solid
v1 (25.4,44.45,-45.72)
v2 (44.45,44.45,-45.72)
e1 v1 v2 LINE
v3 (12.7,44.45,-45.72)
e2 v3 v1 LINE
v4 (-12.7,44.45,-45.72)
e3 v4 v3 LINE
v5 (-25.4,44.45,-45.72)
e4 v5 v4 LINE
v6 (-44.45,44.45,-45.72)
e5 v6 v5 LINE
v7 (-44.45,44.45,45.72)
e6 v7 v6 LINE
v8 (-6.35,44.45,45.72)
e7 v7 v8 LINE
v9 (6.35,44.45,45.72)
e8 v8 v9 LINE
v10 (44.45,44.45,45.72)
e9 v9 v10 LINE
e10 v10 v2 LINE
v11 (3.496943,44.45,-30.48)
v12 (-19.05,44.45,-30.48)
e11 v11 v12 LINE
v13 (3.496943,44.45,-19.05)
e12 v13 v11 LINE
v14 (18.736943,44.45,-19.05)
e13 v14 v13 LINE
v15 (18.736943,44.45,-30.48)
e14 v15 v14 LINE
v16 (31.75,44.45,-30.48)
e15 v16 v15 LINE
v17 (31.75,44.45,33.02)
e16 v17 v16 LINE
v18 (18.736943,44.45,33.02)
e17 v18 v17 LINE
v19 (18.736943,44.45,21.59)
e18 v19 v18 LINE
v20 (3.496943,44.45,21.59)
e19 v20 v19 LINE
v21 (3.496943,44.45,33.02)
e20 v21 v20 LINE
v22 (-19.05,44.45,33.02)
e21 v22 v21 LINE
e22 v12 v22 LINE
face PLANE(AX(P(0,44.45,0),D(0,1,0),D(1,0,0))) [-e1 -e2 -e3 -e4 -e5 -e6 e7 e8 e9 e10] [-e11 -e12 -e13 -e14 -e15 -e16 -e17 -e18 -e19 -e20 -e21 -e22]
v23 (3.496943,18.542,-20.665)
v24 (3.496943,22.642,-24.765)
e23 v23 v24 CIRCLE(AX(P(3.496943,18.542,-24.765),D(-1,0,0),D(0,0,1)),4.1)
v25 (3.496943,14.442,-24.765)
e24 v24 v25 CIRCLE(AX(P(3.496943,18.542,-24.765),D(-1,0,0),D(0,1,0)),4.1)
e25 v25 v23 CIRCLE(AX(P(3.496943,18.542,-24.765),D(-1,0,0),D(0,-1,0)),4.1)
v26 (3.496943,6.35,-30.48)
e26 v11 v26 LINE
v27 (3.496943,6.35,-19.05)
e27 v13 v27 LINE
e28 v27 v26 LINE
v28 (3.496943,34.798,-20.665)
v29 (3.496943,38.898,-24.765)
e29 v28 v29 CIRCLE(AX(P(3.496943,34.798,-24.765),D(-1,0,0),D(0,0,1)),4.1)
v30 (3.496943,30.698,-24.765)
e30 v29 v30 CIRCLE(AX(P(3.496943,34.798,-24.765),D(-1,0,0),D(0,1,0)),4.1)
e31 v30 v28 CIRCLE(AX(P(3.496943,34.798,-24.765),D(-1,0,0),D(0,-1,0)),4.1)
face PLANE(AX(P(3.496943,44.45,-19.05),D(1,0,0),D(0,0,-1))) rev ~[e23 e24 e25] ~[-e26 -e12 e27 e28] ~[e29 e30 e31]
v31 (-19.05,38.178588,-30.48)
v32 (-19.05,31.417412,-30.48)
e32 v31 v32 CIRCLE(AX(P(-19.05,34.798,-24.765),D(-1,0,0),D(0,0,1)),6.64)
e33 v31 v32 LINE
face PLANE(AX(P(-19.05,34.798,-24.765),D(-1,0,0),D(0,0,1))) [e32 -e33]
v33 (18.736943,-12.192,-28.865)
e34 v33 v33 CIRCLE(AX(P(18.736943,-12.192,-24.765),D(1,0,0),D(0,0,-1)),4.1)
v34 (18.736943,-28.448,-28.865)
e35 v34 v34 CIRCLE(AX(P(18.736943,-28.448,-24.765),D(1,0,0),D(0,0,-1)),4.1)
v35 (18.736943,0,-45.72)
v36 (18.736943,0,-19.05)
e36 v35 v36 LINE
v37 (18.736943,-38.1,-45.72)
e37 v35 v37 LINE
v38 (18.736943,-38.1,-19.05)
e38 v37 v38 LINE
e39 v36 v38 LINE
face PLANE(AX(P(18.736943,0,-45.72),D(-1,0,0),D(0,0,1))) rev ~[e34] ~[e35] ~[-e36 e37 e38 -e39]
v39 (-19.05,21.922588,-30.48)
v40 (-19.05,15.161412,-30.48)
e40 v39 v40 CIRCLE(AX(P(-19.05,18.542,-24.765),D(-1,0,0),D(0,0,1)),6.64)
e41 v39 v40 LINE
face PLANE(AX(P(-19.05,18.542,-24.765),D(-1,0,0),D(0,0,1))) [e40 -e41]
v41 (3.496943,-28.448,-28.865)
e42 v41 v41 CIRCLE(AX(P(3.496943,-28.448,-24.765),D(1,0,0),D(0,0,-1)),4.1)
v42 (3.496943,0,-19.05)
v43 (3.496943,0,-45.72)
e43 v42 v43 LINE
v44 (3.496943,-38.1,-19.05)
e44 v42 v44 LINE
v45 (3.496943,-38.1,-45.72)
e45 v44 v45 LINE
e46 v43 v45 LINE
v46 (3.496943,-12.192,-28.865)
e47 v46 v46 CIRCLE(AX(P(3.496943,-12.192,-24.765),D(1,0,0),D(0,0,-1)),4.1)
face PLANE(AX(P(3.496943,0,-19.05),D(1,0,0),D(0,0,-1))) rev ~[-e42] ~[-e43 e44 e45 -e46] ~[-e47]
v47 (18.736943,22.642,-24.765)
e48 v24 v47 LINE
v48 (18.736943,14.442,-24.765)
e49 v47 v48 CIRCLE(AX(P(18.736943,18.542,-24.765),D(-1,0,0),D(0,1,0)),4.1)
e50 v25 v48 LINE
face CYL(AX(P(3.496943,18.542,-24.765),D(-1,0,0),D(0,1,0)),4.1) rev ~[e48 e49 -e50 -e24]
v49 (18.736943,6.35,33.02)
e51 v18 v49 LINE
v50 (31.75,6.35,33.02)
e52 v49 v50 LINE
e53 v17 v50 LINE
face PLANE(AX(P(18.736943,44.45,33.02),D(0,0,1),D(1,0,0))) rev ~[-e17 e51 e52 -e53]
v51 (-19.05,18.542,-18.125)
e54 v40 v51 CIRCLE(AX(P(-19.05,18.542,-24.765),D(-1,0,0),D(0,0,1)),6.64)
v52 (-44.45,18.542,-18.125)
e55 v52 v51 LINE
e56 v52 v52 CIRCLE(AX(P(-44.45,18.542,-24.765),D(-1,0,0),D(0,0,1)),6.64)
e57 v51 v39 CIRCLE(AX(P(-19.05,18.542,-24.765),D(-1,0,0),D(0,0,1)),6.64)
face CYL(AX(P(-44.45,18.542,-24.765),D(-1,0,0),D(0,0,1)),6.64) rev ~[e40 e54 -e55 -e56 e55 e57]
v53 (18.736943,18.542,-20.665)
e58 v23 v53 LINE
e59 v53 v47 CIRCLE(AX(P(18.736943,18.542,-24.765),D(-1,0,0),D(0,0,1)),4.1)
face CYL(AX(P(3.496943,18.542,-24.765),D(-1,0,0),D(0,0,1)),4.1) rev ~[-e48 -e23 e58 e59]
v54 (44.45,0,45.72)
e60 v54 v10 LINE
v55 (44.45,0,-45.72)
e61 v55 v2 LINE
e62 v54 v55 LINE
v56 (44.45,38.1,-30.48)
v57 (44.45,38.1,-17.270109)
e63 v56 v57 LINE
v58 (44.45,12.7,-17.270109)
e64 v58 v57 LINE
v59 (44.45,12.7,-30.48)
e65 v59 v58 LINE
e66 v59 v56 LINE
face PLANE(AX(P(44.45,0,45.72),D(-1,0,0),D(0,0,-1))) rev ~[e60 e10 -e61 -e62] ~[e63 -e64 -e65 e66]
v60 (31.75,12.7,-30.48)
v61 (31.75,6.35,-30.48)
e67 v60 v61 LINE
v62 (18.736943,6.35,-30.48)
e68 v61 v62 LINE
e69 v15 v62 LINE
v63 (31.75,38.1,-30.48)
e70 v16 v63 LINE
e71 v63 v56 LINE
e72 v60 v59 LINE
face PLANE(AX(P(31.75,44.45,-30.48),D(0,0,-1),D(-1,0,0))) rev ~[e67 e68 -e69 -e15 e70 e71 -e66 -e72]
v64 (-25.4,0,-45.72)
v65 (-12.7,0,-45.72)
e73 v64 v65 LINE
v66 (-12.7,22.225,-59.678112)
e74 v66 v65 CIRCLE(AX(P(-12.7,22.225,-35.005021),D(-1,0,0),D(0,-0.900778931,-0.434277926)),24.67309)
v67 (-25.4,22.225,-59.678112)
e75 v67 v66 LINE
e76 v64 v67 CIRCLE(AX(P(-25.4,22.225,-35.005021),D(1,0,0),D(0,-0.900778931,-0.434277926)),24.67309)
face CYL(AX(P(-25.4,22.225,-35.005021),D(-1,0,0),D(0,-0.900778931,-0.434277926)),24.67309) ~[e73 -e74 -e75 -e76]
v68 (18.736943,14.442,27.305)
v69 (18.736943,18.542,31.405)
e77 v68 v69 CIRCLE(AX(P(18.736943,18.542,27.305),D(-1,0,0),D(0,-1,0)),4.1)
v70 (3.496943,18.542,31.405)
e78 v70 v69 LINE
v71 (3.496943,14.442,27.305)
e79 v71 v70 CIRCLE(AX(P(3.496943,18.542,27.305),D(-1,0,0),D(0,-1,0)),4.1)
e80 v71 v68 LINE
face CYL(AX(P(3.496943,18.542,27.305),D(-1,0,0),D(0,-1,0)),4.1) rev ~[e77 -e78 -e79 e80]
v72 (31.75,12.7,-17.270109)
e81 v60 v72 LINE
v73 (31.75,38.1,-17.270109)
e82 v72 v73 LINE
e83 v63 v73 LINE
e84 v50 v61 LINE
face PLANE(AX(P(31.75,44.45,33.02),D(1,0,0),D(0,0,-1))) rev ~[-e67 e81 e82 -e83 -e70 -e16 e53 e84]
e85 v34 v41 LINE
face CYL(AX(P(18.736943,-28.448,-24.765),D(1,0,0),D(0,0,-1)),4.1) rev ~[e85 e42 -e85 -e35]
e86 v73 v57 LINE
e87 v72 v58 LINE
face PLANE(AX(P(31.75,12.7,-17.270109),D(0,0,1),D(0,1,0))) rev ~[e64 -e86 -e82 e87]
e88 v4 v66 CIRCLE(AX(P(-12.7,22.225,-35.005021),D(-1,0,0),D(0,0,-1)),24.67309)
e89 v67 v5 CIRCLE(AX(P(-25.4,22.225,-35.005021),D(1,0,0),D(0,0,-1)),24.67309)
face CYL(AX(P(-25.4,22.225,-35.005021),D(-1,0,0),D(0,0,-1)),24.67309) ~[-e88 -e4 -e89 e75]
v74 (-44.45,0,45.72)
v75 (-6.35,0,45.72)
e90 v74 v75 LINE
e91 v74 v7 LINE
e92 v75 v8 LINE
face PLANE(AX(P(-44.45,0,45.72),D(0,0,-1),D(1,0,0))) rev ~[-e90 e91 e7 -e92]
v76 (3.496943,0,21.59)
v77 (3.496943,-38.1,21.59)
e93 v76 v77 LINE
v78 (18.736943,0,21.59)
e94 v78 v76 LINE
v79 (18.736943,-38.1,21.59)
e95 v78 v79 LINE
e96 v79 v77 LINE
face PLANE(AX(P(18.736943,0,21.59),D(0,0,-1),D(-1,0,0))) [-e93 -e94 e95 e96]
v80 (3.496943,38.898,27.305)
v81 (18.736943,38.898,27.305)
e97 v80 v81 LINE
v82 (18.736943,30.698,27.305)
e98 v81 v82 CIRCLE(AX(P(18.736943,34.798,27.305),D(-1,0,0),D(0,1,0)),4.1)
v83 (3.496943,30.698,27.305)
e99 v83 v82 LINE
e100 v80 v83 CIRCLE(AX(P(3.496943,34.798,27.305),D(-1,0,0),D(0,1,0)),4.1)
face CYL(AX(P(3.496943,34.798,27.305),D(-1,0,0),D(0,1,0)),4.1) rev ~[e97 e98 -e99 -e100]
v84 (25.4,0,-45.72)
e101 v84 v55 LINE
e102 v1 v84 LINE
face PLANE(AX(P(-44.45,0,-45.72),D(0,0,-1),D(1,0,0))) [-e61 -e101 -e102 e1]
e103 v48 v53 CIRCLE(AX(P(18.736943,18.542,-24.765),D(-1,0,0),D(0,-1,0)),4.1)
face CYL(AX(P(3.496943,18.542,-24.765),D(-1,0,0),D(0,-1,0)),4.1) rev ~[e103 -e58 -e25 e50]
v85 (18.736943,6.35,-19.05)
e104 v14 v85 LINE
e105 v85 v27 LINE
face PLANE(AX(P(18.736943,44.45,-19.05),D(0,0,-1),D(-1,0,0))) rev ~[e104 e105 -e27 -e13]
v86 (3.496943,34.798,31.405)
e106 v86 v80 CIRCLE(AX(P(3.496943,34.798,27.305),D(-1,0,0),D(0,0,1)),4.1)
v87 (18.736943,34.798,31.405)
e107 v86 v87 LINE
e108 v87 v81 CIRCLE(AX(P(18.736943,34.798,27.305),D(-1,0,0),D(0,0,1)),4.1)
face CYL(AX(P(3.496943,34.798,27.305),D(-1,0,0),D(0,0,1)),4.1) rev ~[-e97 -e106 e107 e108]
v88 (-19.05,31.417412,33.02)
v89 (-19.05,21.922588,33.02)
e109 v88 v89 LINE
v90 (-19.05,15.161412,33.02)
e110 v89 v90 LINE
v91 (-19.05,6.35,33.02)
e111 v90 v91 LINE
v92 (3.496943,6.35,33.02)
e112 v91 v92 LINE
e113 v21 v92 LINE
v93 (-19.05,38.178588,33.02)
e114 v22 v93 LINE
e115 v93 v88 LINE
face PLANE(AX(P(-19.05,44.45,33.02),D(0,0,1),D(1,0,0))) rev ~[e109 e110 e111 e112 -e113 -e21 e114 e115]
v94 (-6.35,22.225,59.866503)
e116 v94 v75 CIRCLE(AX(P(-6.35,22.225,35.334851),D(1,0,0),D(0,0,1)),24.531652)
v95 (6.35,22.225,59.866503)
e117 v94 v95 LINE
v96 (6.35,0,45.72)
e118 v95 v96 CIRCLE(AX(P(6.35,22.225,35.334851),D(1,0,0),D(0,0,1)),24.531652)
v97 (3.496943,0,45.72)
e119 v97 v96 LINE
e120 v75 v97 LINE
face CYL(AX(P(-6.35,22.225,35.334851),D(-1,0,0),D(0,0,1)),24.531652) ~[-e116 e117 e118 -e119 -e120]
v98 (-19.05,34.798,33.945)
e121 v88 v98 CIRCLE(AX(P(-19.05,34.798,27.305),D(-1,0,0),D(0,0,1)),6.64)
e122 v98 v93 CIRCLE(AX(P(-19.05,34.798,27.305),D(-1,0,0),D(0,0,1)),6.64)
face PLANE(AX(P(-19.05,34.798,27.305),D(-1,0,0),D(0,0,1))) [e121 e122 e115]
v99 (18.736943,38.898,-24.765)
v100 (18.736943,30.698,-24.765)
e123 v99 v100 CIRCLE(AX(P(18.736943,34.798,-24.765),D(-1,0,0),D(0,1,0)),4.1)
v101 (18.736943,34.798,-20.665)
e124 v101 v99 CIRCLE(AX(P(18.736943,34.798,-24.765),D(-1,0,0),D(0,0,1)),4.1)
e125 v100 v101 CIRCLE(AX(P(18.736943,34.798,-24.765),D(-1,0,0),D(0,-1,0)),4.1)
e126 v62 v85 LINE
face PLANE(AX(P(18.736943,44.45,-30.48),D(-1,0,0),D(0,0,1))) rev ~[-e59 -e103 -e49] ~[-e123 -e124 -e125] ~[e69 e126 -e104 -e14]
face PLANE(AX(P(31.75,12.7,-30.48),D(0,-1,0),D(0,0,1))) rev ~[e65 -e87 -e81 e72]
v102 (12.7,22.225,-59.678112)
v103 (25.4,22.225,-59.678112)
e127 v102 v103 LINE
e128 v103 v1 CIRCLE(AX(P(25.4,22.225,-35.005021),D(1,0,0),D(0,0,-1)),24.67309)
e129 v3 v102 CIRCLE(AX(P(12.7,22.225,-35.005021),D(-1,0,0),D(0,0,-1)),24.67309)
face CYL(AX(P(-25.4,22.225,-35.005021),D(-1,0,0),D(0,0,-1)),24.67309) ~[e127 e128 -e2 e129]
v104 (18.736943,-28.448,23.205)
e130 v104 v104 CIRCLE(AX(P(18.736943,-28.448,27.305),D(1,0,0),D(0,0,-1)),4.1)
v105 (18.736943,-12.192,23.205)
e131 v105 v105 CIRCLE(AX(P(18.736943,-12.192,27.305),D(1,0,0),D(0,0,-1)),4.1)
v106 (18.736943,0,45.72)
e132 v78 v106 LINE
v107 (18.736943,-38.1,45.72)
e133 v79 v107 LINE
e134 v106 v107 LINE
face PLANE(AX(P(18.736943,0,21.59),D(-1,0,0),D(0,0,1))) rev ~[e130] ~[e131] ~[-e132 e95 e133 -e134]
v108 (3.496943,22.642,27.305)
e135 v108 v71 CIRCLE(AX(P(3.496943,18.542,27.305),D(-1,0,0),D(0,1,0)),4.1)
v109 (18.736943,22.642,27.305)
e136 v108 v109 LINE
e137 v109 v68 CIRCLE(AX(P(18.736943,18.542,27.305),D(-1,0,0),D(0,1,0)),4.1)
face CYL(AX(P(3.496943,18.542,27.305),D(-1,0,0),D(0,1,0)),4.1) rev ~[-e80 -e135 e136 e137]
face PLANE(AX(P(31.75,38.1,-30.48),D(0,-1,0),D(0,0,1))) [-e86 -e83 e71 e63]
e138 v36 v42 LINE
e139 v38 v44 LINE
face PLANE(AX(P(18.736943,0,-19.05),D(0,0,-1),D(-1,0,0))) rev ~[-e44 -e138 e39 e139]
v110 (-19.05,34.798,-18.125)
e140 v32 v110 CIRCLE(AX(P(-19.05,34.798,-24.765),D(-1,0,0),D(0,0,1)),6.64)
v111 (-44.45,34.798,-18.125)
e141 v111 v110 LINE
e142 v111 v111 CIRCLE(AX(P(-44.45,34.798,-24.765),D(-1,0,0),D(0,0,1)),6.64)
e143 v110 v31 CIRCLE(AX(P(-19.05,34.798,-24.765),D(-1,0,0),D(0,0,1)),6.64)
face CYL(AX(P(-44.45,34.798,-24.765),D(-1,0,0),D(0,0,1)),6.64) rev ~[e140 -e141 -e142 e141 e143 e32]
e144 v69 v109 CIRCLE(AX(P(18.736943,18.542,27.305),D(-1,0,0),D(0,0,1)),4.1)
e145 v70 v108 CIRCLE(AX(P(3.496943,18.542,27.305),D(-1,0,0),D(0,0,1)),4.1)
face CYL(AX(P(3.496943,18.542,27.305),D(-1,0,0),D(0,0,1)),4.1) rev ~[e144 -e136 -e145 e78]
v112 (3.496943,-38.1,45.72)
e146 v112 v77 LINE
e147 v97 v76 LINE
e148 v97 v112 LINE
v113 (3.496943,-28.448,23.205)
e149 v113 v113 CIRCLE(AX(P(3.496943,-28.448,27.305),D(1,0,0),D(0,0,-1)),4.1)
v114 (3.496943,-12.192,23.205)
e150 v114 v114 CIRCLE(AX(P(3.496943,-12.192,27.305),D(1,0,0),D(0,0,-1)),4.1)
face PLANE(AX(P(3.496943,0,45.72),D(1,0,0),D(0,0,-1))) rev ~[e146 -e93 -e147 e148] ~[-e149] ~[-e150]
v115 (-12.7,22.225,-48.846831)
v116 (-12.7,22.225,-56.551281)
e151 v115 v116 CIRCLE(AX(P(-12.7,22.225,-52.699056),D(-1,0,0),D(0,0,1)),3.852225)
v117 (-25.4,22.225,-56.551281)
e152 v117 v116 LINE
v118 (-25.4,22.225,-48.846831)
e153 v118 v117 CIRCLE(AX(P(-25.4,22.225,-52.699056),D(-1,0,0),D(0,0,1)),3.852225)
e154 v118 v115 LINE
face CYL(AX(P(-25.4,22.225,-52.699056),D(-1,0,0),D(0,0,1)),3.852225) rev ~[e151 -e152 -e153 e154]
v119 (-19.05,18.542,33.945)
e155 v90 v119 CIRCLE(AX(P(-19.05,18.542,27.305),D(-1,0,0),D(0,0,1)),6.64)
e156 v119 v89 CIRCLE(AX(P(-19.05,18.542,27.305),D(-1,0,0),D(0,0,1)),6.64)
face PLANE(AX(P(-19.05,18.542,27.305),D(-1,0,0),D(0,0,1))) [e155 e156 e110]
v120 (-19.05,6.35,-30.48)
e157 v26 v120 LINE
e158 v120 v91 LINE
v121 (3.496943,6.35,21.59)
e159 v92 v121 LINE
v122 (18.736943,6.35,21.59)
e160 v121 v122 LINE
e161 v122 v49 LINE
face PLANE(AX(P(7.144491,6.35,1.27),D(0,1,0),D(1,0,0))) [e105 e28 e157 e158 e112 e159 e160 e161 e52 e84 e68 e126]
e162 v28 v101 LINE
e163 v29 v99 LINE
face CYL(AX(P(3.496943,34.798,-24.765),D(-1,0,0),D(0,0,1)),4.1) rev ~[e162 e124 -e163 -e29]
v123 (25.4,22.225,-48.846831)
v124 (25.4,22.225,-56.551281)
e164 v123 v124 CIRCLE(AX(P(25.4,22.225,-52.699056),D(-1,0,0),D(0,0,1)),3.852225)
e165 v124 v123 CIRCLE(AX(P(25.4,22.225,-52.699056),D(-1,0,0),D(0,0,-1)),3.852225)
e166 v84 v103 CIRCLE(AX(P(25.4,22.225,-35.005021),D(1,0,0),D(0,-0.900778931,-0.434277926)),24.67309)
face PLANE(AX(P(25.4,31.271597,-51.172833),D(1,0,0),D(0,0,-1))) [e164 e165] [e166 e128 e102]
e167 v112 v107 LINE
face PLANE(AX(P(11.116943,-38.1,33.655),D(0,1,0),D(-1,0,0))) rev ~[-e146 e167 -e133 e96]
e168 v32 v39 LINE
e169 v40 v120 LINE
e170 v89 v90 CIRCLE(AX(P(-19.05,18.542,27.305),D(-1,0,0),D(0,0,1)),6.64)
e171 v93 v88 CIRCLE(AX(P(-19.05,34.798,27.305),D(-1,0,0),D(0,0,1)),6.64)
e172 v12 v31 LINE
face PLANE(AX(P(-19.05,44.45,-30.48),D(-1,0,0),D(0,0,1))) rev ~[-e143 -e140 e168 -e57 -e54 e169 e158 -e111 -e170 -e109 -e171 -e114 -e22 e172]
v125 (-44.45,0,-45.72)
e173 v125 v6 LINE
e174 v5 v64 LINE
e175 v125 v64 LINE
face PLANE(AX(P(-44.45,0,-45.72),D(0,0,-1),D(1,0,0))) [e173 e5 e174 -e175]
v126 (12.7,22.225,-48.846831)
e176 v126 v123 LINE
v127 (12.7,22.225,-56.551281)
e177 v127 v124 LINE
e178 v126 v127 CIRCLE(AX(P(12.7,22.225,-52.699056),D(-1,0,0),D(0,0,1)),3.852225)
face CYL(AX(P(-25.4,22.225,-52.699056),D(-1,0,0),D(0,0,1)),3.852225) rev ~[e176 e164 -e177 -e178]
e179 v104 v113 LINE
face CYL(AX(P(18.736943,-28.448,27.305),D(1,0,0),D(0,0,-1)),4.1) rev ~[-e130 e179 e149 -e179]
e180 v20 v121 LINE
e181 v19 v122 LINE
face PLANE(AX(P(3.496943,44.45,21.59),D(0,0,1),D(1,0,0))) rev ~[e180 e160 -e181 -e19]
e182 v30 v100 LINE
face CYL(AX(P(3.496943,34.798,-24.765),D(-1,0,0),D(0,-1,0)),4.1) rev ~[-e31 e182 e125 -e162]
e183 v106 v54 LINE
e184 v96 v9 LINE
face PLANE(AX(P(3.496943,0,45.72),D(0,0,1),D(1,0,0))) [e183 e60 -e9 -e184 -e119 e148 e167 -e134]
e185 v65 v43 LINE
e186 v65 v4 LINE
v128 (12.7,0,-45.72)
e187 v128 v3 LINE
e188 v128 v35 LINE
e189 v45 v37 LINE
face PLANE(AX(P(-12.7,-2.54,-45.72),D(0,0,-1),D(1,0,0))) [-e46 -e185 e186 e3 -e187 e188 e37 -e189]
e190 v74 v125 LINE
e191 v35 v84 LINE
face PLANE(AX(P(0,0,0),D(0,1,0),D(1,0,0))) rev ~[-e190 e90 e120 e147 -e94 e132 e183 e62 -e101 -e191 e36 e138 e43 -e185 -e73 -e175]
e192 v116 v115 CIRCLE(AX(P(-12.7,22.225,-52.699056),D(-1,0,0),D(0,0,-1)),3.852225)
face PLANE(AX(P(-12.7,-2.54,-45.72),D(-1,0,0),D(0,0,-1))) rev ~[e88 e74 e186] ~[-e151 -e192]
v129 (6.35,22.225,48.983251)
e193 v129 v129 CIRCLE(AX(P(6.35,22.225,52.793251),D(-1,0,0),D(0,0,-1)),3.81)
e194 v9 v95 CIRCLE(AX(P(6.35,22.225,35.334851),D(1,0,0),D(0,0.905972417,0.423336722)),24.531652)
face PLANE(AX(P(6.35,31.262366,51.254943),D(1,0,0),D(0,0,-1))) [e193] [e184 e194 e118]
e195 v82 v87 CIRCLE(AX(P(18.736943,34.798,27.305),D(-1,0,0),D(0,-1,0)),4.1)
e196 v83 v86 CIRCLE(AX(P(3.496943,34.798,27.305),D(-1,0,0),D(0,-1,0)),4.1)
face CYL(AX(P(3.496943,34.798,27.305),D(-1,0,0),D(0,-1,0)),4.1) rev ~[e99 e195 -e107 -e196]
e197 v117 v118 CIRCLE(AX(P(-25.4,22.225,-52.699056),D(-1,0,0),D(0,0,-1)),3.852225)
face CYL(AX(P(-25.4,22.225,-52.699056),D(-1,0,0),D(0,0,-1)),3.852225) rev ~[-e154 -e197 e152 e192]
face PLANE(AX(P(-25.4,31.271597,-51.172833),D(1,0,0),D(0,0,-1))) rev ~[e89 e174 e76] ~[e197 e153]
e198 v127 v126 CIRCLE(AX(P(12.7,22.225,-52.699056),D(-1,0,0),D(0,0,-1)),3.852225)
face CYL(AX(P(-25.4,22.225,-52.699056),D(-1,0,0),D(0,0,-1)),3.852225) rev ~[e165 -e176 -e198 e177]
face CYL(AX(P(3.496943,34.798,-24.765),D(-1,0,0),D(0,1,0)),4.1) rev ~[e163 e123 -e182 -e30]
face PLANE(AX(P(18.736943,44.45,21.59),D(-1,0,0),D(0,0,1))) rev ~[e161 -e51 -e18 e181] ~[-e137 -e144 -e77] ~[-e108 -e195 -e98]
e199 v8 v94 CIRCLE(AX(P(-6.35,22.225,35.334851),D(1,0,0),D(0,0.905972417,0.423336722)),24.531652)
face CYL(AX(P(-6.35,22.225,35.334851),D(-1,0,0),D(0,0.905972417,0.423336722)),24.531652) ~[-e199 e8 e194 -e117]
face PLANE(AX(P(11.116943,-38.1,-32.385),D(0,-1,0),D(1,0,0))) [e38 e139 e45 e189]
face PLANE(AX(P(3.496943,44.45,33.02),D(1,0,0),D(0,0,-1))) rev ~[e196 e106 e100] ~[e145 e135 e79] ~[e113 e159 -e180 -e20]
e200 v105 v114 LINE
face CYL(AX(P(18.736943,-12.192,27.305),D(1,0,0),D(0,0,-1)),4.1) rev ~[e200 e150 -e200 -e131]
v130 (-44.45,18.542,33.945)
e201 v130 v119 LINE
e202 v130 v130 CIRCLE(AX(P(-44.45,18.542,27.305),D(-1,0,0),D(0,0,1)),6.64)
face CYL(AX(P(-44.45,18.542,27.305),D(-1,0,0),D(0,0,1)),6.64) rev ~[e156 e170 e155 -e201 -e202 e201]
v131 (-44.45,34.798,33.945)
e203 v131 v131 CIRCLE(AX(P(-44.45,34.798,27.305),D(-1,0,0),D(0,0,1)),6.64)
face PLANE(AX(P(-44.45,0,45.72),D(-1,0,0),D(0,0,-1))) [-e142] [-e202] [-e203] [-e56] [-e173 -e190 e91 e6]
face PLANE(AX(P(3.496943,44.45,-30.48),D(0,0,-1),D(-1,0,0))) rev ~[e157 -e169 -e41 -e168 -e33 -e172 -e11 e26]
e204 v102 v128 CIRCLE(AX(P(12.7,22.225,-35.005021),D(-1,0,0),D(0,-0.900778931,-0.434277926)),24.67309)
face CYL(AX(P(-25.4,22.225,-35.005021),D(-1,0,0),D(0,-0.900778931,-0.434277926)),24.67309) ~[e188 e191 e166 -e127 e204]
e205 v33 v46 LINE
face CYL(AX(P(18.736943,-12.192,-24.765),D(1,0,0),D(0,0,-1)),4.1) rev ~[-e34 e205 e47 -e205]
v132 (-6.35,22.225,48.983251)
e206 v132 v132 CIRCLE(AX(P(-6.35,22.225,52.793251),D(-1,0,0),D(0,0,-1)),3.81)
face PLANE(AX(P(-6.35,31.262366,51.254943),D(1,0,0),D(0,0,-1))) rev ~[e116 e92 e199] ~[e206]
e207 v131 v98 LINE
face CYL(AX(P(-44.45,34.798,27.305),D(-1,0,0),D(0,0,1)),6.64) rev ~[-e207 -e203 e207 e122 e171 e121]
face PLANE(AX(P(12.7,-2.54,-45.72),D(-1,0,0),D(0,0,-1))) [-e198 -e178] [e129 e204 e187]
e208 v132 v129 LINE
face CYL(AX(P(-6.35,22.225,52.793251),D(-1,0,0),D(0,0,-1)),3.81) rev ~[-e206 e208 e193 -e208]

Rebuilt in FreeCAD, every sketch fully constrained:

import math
import FreeCAD as App
import Part
import Sketcher

V = App.Vector
Q = App.Units.Quantity


def add_polygon(sketch, points):
    """Adds a closed chain of lines whose ends are joined by coincident constraints."""
    first, n = sketch.GeometryCount, len(points)
    for a, b in zip(points, points[1:] + points[:1]):
        sketch.addGeometry(Part.LineSegment(App.Vector(*a, 0), App.Vector(*b, 0)), False)
    for i in range(n):
        sketch.addConstraint(Sketcher.Constraint("Coincident", first + i, 2, first + (i + 1) % n, 1))

doc = App.newDocument("Part")
body = doc.addObject("PartDesign::Body", "Body")

# Sketch on XZ plane
sketch1 = body.newObject("Sketcher::SketchObject", "Sketch")
sketch1.AttachmentSupport = (doc.getObject("XZ_Plane"), [""])
sketch1.MapMode = "FlatFace"
add_polygon(sketch1, [(-44, -46), (-44, 46), (44, 46), (44, -46)])  # lines 0-3
sketch1.addConstraint(Sketcher.Constraint("Vertical", 0))
sketch1.addConstraint(Sketcher.Constraint("Horizontal", 1))
sketch1.addConstraint(Sketcher.Constraint("Vertical", 2))
sketch1.addConstraint(Sketcher.Constraint("Horizontal", 3))
sketch1.addConstraint(Sketcher.Constraint("Symmetric", 0, 2, 2, 2, -1, 1))
sketch1.addConstraint(Sketcher.Constraint("DistanceX", 1, 1, 1, 2, Q("3.5 in")))
sketch1.addConstraint(Sketcher.Constraint("DistanceY", 0, 1, 0, 2, Q("3.6 in")))
pad1 = body.newObject("PartDesign::Pad", "Pad")
pad1.Profile = sketch1
pad1.Length = Q("1.75 in")
pad1.Reversed = True

# Sketch on XZ plane
sketch2 = body.newObject("Sketcher::SketchObject", "Sketch001")
sketch2.AttachmentSupport = (doc.getObject("XZ_Plane"), [""])
sketch2.MapMode = "FlatFace"
sketch2.AttachmentOffset = App.Placement(V(0, 0, -1.75 * 25.4), App.Rotation())
add_polygon(sketch2, [(-19, -30), (-19, 33), (3, 33), (3, 22), (19, 22), (19, 33), (32, 33), (32, -30), (19, -30), (19, -19), (3, -19), (3, -30)])  # lines 0-11
sketch2.addConstraint(Sketcher.Constraint("Vertical", 0))
sketch2.addConstraint(Sketcher.Constraint("Horizontal", 1))
sketch2.addConstraint(Sketcher.Constraint("Vertical", 2))
sketch2.addConstraint(Sketcher.Constraint("Horizontal", 3))
sketch2.addConstraint(Sketcher.Constraint("Vertical", 4))
sketch2.addConstraint(Sketcher.Constraint("Horizontal", 5))
sketch2.addConstraint(Sketcher.Constraint("Vertical", 6))
sketch2.addConstraint(Sketcher.Constraint("Horizontal", 7))
sketch2.addConstraint(Sketcher.Constraint("Vertical", 8))
sketch2.addConstraint(Sketcher.Constraint("Horizontal", 9))
sketch2.addConstraint(Sketcher.Constraint("Vertical", 10))
sketch2.addConstraint(Sketcher.Constraint("Horizontal", 11))
sketch2.addConstraint(Sketcher.Constraint("Horizontal", 1, 2, 4, 2))
sketch2.addConstraint(Sketcher.Constraint("Horizontal", 7, 2, 10, 2))
sketch2.addConstraint(Sketcher.Constraint("Vertical", 4, 2, 7, 2))
sketch2.addConstraint(Sketcher.Constraint("Vertical", 2, 2, 9, 2))
sketch2.addConstraint(Sketcher.Constraint("Equal", 4, 8))
sketch2.addConstraint(Sketcher.Constraint("DistanceX", 3, 1, 3, 2, Q("0.6 in")))
sketch2.addConstraint(Sketcher.Constraint("DistanceY", 0, 1, 0, 2, Q("2.5 in")))
sketch2.addConstraint(Sketcher.Constraint("DistanceX", 0, 2, 5, 2, Q("2 in")))
sketch2.addConstraint(Sketcher.Constraint("DistanceY", 2, 2, 2, 1, Q("0.45 in")))
sketch2.addConstraint(Sketcher.Constraint("DistanceY", -1, 1, 0, 2, Q("1.3 in")))
sketch2.addConstraint(Sketcher.Constraint("DistanceX", 0, 2, -1, 1, Q("0.75 in")))
sketch2.addConstraint(Sketcher.Constraint("DistanceX", 1, 1, 1, 2, 22.546943))
pocket1 = body.newObject("PartDesign::Pocket", "Pocket")
pocket1.Profile = sketch2
pocket1.Length = Q("1.5 in")
pocket1.Reversed = True

# Sketch on YZ plane
sketch3 = body.newObject("Sketcher::SketchObject", "Sketch002")
sketch3.AttachmentSupport = (doc.getObject("YZ_Plane"), [""])
sketch3.MapMode = "FlatFace"
sketch3.AttachmentOffset = App.Placement(V(0, 0, 3.496943), App.Rotation())
sketch3.addGeometry(Part.ArcOfCircle(Part.Circle(V(18.5, -24.8, 0), V(0, 0, 1), 4.1), math.radians(180), math.radians(360)), False)
sketch3.addGeometry(Part.ArcOfCircle(Part.Circle(V(18.5, -24.8, 0), V(0, 0, 1), 4.1), math.radians(90), math.radians(180)), False)
sketch3.addGeometry(Part.ArcOfCircle(Part.Circle(V(18.5, -24.8, 0), V(0, 0, 1), 4.1), math.radians(0), math.radians(90)), False)
sketch3.addGeometry(Part.ArcOfCircle(Part.Circle(V(34.8, -24.8, 0), V(0, 0, 1), 4.1), math.radians(180), math.radians(360)), False)
sketch3.addGeometry(Part.ArcOfCircle(Part.Circle(V(34.8, -24.8, 0), V(0, 0, 1), 4.1), math.radians(90), math.radians(180)), False)
sketch3.addGeometry(Part.ArcOfCircle(Part.Circle(V(34.8, -24.8, 0), V(0, 0, 1), 4.1), math.radians(0), math.radians(90)), False)
sketch3.addGeometry(Part.ArcOfCircle(Part.Circle(V(18.5, 27.3, 0), V(0, 0, 1), 4.1), math.radians(180), math.radians(360)), False)
sketch3.addGeometry(Part.ArcOfCircle(Part.Circle(V(18.5, 27.3, 0), V(0, 0, 1), 4.1), math.radians(90), math.radians(180)), False)
sketch3.addGeometry(Part.ArcOfCircle(Part.Circle(V(18.5, 27.3, 0), V(0, 0, 1), 4.1), math.radians(0), math.radians(90)), False)
sketch3.addGeometry(Part.ArcOfCircle(Part.Circle(V(34.8, 27.3, 0), V(0, 0, 1), 4.1), math.radians(180), math.radians(360)), False)
sketch3.addGeometry(Part.ArcOfCircle(Part.Circle(V(34.8, 27.3, 0), V(0, 0, 1), 4.1), math.radians(90), math.radians(180)), False)
sketch3.addGeometry(Part.ArcOfCircle(Part.Circle(V(34.8, 27.3, 0), V(0, 0, 1), 4.1), math.radians(0), math.radians(90)), False)
sketch3.addConstraint(Sketcher.Constraint("Tangent", 0, 1, 1, 2))
sketch3.addConstraint(Sketcher.Constraint("Tangent", 1, 1, 2, 2))
sketch3.addConstraint(Sketcher.Constraint("Tangent", 2, 1, 0, 2))
sketch3.addConstraint(Sketcher.Constraint("Tangent", 3, 1, 4, 2))
sketch3.addConstraint(Sketcher.Constraint("Tangent", 4, 1, 5, 2))
sketch3.addConstraint(Sketcher.Constraint("Tangent", 5, 1, 3, 2))
sketch3.addConstraint(Sketcher.Constraint("Tangent", 6, 1, 7, 2))
sketch3.addConstraint(Sketcher.Constraint("Tangent", 7, 1, 8, 2))
sketch3.addConstraint(Sketcher.Constraint("Tangent", 8, 1, 6, 2))
sketch3.addConstraint(Sketcher.Constraint("Tangent", 9, 1, 10, 2))
sketch3.addConstraint(Sketcher.Constraint("Tangent", 10, 1, 11, 2))
sketch3.addConstraint(Sketcher.Constraint("Tangent", 11, 1, 9, 2))
sketch3.addConstraint(Sketcher.Constraint("Equal", 2, 3))
sketch3.addConstraint(Sketcher.Constraint("Equal", 5, 6))
sketch3.addConstraint(Sketcher.Constraint("Equal", 8, 9))
sketch3.addConstraint(Sketcher.Constraint("Horizontal", 2, 3, 3, 3))
sketch3.addConstraint(Sketcher.Constraint("Horizontal", 8, 3, 9, 3))
sketch3.addConstraint(Sketcher.Constraint("Horizontal", 5, 3, 0, 1))
sketch3.addConstraint(Sketcher.Constraint("Horizontal", 0, 1, 2, 1))
sketch3.addConstraint(Sketcher.Constraint("Horizontal", 2, 1, 3, 1))
sketch3.addConstraint(Sketcher.Constraint("Horizontal", 3, 1, 5, 1))
sketch3.addConstraint(Sketcher.Constraint("Horizontal", 11, 3, 6, 1))
sketch3.addConstraint(Sketcher.Constraint("Horizontal", 6, 1, 8, 1))
sketch3.addConstraint(Sketcher.Constraint("Horizontal", 8, 1, 9, 1))
sketch3.addConstraint(Sketcher.Constraint("Horizontal", 9, 1, 11, 1))
sketch3.addConstraint(Sketcher.Constraint("Vertical", 2, 3, 6, 3))
sketch3.addConstraint(Sketcher.Constraint("Vertical", 5, 3, 9, 3))
sketch3.addConstraint(Sketcher.Constraint("Vertical", 8, 3, 1, 1))
sketch3.addConstraint(Sketcher.Constraint("Vertical", 11, 3, 4, 1))
sketch3.addConstraint(Sketcher.Constraint("Vertical", 1, 1, 7, 1))
sketch3.addConstraint(Sketcher.Constraint("Vertical", 4, 1, 10, 1))
sketch3.addConstraint(Sketcher.Constraint("DistanceX", -1, 1, 0, 3, Q("0.73 in")))
sketch3.addConstraint(Sketcher.Constraint("DistanceX", -1, 1, 3, 3, Q("1.37 in")))
sketch3.addConstraint(Sketcher.Constraint("Radius", 0, 4.1))
sketch3.addConstraint(Sketcher.Constraint("DistanceY", 0, 3, 6, 3, Q("2.05 in")))
sketch3.addConstraint(Sketcher.Constraint("DistanceY", 0, 3, -1, 1, Q("0.975 in")))
pocket2 = body.newObject("PartDesign::Pocket", "Pocket001")
pocket2.Profile = sketch3
pocket2.Length = Q("0.6 in")
pocket2.Reversed = True

# Sketch on YZ plane
sketch4 = body.newObject("Sketcher::SketchObject", "Sketch003")
sketch4.AttachmentSupport = (doc.getObject("YZ_Plane"), [""])
sketch4.MapMode = "FlatFace"
sketch4.AttachmentOffset = App.Placement(V(0, 0, -1.75 * 25.4), App.Rotation())
sketch4.addGeometry(Part.Circle(V(19, -25, 0), V(0, 0, 1), 7), False)
sketch4.addGeometry(Part.Circle(V(35, -25, 0), V(0, 0, 1), 7), False)
sketch4.addGeometry(Part.Circle(V(19, 27, 0), V(0, 0, 1), 7), False)
sketch4.addGeometry(Part.Circle(V(35, 27, 0), V(0, 0, 1), 7), False)
sketch4.addConstraint(Sketcher.Constraint("Equal", 0, 1))
sketch4.addConstraint(Sketcher.Constraint("Equal", 1, 2))
sketch4.addConstraint(Sketcher.Constraint("Equal", 2, 3))
sketch4.addConstraint(Sketcher.Constraint("Horizontal", 0, 3, 1, 3))
sketch4.addConstraint(Sketcher.Constraint("Horizontal", 2, 3, 3, 3))
sketch4.addConstraint(Sketcher.Constraint("Vertical", 0, 3, 2, 3))
sketch4.addConstraint(Sketcher.Constraint("Vertical", 1, 3, 3, 3))
sketch4.addConstraint(Sketcher.Constraint("Diameter", 0, 13.28))
sketch4.addConstraint(Sketcher.Constraint("DistanceX", -1, 1, 0, 3, Q("0.73 in")))
sketch4.addConstraint(Sketcher.Constraint("DistanceX", -1, 1, 1, 3, Q("1.37 in")))
sketch4.addConstraint(Sketcher.Constraint("DistanceY", 0, 3, 2, 3, Q("2.05 in")))
sketch4.addConstraint(Sketcher.Constraint("DistanceY", 0, 3, -1, 1, Q("0.975 in")))
pocket3 = body.newObject("PartDesign::Pocket", "Pocket002")
pocket3.Profile = sketch4
pocket3.Length = Q("1 in")
pocket3.Reversed = True

# Sketch on YZ plane
sketch5 = body.newObject("Sketcher::SketchObject", "Sketch004")
sketch5.AttachmentSupport = (doc.getObject("YZ_Plane"), [""])
sketch5.MapMode = "FlatFace"
sketch5.AttachmentOffset = App.Placement(V(0, 0, 1.25 * 25.4), App.Rotation())
add_polygon(sketch5, [(38, -30), (13, -30), (13, -17), (38, -17)])  # lines 0-3
sketch5.addConstraint(Sketcher.Constraint("Horizontal", 0))
sketch5.addConstraint(Sketcher.Constraint("Vertical", 1))
sketch5.addConstraint(Sketcher.Constraint("Horizontal", 2))
sketch5.addConstraint(Sketcher.Constraint("Vertical", 3))
sketch5.addConstraint(Sketcher.Constraint("DistanceX", 0, 2, 0, 1, Q("1 in")))
sketch5.addConstraint(Sketcher.Constraint("DistanceX", -1, 1, 0, 2, Q("0.5 in")))
sketch5.addConstraint(Sketcher.Constraint("DistanceY", 0, 2, -1, 1, Q("1.2 in")))
sketch5.addConstraint(Sketcher.Constraint("DistanceY", 1, 1, 1, 2, 13.209891))
pocket4 = body.newObject("PartDesign::Pocket", "Pocket003")
pocket4.Profile = sketch5
pocket4.Length = Q("0.5 in")
pocket4.Reversed = True

# Sketch on YZ plane
sketch6 = body.newObject("Sketcher::SketchObject", "Sketch005")
sketch6.AttachmentSupport = (doc.getObject("YZ_Plane"), [""])
sketch6.MapMode = "FlatFace"
sketch6.addGeometry(Part.ArcOfCircle(Part.Circle(V(22.2, -35, 0), V(0, 0, 1), 24.7), math.radians(-90), math.radians(-26)), False)
sketch6.addGeometry(Part.LineSegment(V(44.5, -45.7, 0), V(0, -45.7, 0)), False)
sketch6.addGeometry(Part.ArcOfCircle(Part.Circle(V(22.2, -35, 0), V(0, 0, 1), 24.7), math.radians(-154), math.radians(-90)), False)
sketch6.addGeometry(Part.ArcOfCircle(Part.Circle(V(22.2, -52.7, 0), V(0, 0, 1), 3.9), math.radians(-90), math.radians(90)), False)
sketch6.addGeometry(Part.ArcOfCircle(Part.Circle(V(22.2, -52.7, 0), V(0, 0, 1), 3.9), math.radians(90), math.radians(270)), False)
sketch6.addConstraint(Sketcher.Constraint("Coincident", 0, 2, 1, 1))
sketch6.addConstraint(Sketcher.Constraint("Coincident", 1, 2, 2, 1))
sketch6.addConstraint(Sketcher.Constraint("Tangent", 2, 2, 0, 1))
sketch6.addConstraint(Sketcher.Constraint("Tangent", 3, 1, 4, 2))
sketch6.addConstraint(Sketcher.Constraint("Coincident", 4, 1, 3, 2))
sketch6.addConstraint(Sketcher.Constraint("Horizontal", 1))
sketch6.addConstraint(Sketcher.Constraint("Equal", 0, 2))
sketch6.addConstraint(Sketcher.Constraint("PointOnObject", 1, 2, -2))
sketch6.addConstraint(Sketcher.Constraint("Vertical", 2, 3, 3, 3))
sketch6.addConstraint(Sketcher.Constraint("Vertical", 4, 3, 2, 2))
sketch6.addConstraint(Sketcher.Constraint("Vertical", 2, 2, 3, 1))
sketch6.addConstraint(Sketcher.Constraint("Vertical", 3, 1, 4, 1))
sketch6.addConstraint(Sketcher.Constraint("DistanceX", 1, 2, 1, 1, Q("1.75 in")))
sketch6.addConstraint(Sketcher.Constraint("DistanceY", 0, 2, -1, 1, Q("1.8 in")))
sketch6.addConstraint(Sketcher.Constraint("Radius", 0, 24.67309))
sketch6.addConstraint(Sketcher.Constraint("Radius", 3, 3.852225))
sketch6.addConstraint(Sketcher.Constraint("DistanceY", 3, 1, -1, 1, 56.551281))
pad2 = body.newObject("PartDesign::Pad", "Pad001")
pad2.Profile = sketch6
pad2.Type = "TwoLengths"
pad2.Length = Q("1 in")
pad2.Length2 = Q("1 in")

# Sketch on XZ plane
sketch7 = body.newObject("Sketcher::SketchObject", "Sketch006")
sketch7.AttachmentSupport = (doc.getObject("XZ_Plane"), [""])
sketch7.MapMode = "FlatFace"
add_polygon(sketch7, [(-13, -64), (-13, -46), (13, -46), (13, -64)])  # lines 0-3
sketch7.addConstraint(Sketcher.Constraint("Vertical", 0))
sketch7.addConstraint(Sketcher.Constraint("Horizontal", 1))
sketch7.addConstraint(Sketcher.Constraint("Vertical", 2))
sketch7.addConstraint(Sketcher.Constraint("Horizontal", 3))
sketch7.addConstraint(Sketcher.Constraint("DistanceX", 1, 1, 1, 2, Q("1 in")))
sketch7.addConstraint(Sketcher.Constraint("DistanceX", 0, 2, -1, 1, Q("0.5 in")))
sketch7.addConstraint(Sketcher.Constraint("DistanceY", 0, 2, -1, 1, Q("1.8 in")))
sketch7.addConstraint(Sketcher.Constraint("DistanceY", 0, 1, 0, 2, 18.22159))
pocket5 = body.newObject("PartDesign::Pocket", "Pocket004")
pocket5.Profile = sketch7
pocket5.Type = "ThroughAll"
pocket5.Midplane = True

# Sketch on YZ plane
sketch8 = body.newObject("Sketcher::SketchObject", "Sketch007")
sketch8.AttachmentSupport = (doc.getObject("YZ_Plane"), [""])
sketch8.MapMode = "FlatFace"
sketch8.addGeometry(Part.ArcOfCircle(Part.Circle(V(22.2, 35.3, 0), V(0, 0, 1), 24.5), math.radians(25), math.radians(90)), False)
sketch8.addGeometry(Part.ArcOfCircle(Part.Circle(V(22.2, 35.3, 0), V(0, 0, 1), 24.5), math.radians(90), math.radians(155)), False)
sketch8.addGeometry(Part.LineSegment(V(0, 45.7, 0), V(44.5, 45.7, 0)), False)
sketch8.addGeometry(Part.Circle(V(22.2, 52.8, 0), V(0, 0, 1), 3.8), False)
sketch8.addConstraint(Sketcher.Constraint("Tangent", 0, 2, 1, 1))
sketch8.addConstraint(Sketcher.Constraint("Coincident", 1, 2, 2, 1))
sketch8.addConstraint(Sketcher.Constraint("Coincident", 2, 2, 0, 1))
sketch8.addConstraint(Sketcher.Constraint("Horizontal", 2))
sketch8.addConstraint(Sketcher.Constraint("Equal", 0, 1))
sketch8.addConstraint(Sketcher.Constraint("PointOnObject", 1, 2, -2))
sketch8.addConstraint(Sketcher.Constraint("Vertical", 1, 3, 3, 3))
sketch8.addConstraint(Sketcher.Constraint("Vertical", 3, 3, 0, 2))
sketch8.addConstraint(Sketcher.Constraint("Diameter", 3, Q("0.3 in")))
sketch8.addConstraint(Sketcher.Constraint("DistanceX", 2, 1, 2, 2, Q("1.75 in")))
sketch8.addConstraint(Sketcher.Constraint("DistanceY", -1, 1, 1, 2, Q("1.8 in")))
sketch8.addConstraint(Sketcher.Constraint("Radius", 0, 24.531652))
sketch8.addConstraint(Sketcher.Constraint("DistanceY", 0, 3, 3, 3, 17.458401))
pad3 = body.newObject("PartDesign::Pad", "Pad002")
pad3.Profile = sketch8
pad3.Type = "TwoLengths"
pad3.Length = Q("0.25 in")
pad3.Length2 = Q("0.25 in")

# Sketch on XZ plane
sketch9 = body.newObject("Sketcher::SketchObject", "Sketch008")
sketch9.AttachmentSupport = (doc.getObject("XZ_Plane"), [""])
sketch9.MapMode = "FlatFace"
add_polygon(sketch9, [(19, 22), (19, 46), (3, 46), (3, 22)])  # lines 0-3
add_polygon(sketch9, [(19, -19), (3, -19), (3, -46), (19, -46)])  # lines 4-7
sketch9.addConstraint(Sketcher.Constraint("Vertical", 0))
sketch9.addConstraint(Sketcher.Constraint("Horizontal", 1))
sketch9.addConstraint(Sketcher.Constraint("Vertical", 2))
sketch9.addConstraint(Sketcher.Constraint("Horizontal", 3))
sketch9.addConstraint(Sketcher.Constraint("Horizontal", 4))
sketch9.addConstraint(Sketcher.Constraint("Vertical", 5))
sketch9.addConstraint(Sketcher.Constraint("Horizontal", 6))
sketch9.addConstraint(Sketcher.Constraint("Vertical", 7))
sketch9.addConstraint(Sketcher.Constraint("Symmetric", 1, 2, 5, 2, -1))
sketch9.addConstraint(Sketcher.Constraint("Vertical", 3, 2, 6, 2))
sketch9.addConstraint(Sketcher.Constraint("DistanceX", 1, 2, 1, 1, Q("0.6 in")))
sketch9.addConstraint(Sketcher.Constraint("DistanceY", 0, 1, 0, 2, Q("0.95 in")))
sketch9.addConstraint(Sketcher.Constraint("DistanceY", 5, 2, 5, 1, Q("1.05 in")))
sketch9.addConstraint(Sketcher.Constraint("DistanceY", -1, 1, 0, 2, Q("1.8 in")))
sketch9.addConstraint(Sketcher.Constraint("DistanceX", -1, 1, 0, 2, 18.736943))
pad4 = body.newObject("PartDesign::Pad", "Pad003")
pad4.Profile = sketch9
pad4.Length = Q("1.5 in")

# Sketch on YZ plane
sketch10 = body.newObject("Sketcher::SketchObject", "Sketch009")
sketch10.AttachmentSupport = (doc.getObject("YZ_Plane"), [""])
sketch10.MapMode = "FlatFace"
sketch10.AttachmentOffset = App.Placement(V(0, 0, 18.736943), App.Rotation())
sketch10.addGeometry(Part.Circle(V(-12.2, -24.8, 0), V(0, 0, 1), 4.1), False)
sketch10.addGeometry(Part.Circle(V(-28.4, -24.8, 0), V(0, 0, 1), 4.1), False)
sketch10.addGeometry(Part.Circle(V(-12.2, 27.3, 0), V(0, 0, 1), 4.1), False)
sketch10.addGeometry(Part.Circle(V(-28.4, 27.3, 0), V(0, 0, 1), 4.1), False)
sketch10.addConstraint(Sketcher.Constraint("Equal", 0, 1))
sketch10.addConstraint(Sketcher.Constraint("Equal", 1, 2))
sketch10.addConstraint(Sketcher.Constraint("Equal", 2, 3))
sketch10.addConstraint(Sketcher.Constraint("Horizontal", 0, 3, 1, 3))
sketch10.addConstraint(Sketcher.Constraint("Horizontal", 2, 3, 3, 3))
sketch10.addConstraint(Sketcher.Constraint("Vertical", 0, 3, 2, 3))
sketch10.addConstraint(Sketcher.Constraint("Vertical", 1, 3, 3, 3))
sketch10.addConstraint(Sketcher.Constraint("Diameter", 0, 8.2))
sketch10.addConstraint(Sketcher.Constraint("DistanceX", 0, 3, -1, 1, Q("0.48 in")))
sketch10.addConstraint(Sketcher.Constraint("DistanceX", 1, 3, -1, 1, Q("1.12 in")))
sketch10.addConstraint(Sketcher.Constraint("DistanceY", 0, 3, 2, 3, Q("2.05 in")))
sketch10.addConstraint(Sketcher.Constraint("DistanceY", 0, 3, -1, 1, Q("0.975 in")))
pocket6 = body.newObject("PartDesign::Pocket", "Pocket005")
pocket6.Profile = sketch10
pocket6.Type = "ThroughAll"

doc.recompute()
